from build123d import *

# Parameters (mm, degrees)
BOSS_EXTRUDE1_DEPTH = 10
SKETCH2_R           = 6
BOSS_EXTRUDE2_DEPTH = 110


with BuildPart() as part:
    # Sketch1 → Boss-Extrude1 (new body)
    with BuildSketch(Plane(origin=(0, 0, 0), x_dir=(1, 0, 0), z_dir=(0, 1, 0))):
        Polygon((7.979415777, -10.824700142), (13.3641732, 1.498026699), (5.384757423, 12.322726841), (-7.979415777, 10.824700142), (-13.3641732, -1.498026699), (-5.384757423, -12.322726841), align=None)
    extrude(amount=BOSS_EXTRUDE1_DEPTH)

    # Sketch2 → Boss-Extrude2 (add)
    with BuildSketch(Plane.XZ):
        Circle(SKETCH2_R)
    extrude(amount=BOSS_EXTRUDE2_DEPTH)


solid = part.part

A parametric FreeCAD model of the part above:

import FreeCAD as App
import Part
import Sketcher
from FreeCAD import Vector
Q = App.Units.Quantity

doc = App.newDocument("Part")
params = doc.addObject("Spreadsheet::Sheet", "Params")
for row, (alias, value) in enumerate([
    ("pad1_length", "10 mm"),
    ("sketch2_diameter", "12 mm"),
    ("pad2_length", "110 mm"),
], start=1):
    params.set(f"A{row}", alias)
    params.set(f"B{row}", "=" + value)
    params.setAlias(f"B{row}", alias)

body = doc.addObject("PartDesign::Body", "Body")

# Sketch on XZ plane
sketch1 = body.newObject("Sketcher::SketchObject", "Sketch")
sketch1.AttachmentSupport = (doc.getObject("XZ_Plane"), [""])
sketch1.MapMode = "FlatFace"
sketch1.addGeometry([
    Part.LineSegment(Vector(8, 11, 0), Vector(13, -1, 0)),  # 0
    Part.LineSegment(Vector(13, -1, 0), Vector(5, -12, 0)),  # 1
    Part.LineSegment(Vector(5, -12, 0), Vector(-8, -11, 0)),  # 2
    Part.LineSegment(Vector(-8, -11, 0), Vector(-13, 1, 0)),  # 3
    Part.LineSegment(Vector(-13, 1, 0), Vector(-5, 12, 0)),  # 4
    Part.LineSegment(Vector(-5, 12, 0), Vector(8, 11, 0)),  # 5
], False)
sketch1.addConstraint([
    Sketcher.Constraint("Coincident", 0, 2, 1, 1),
    Sketcher.Constraint("Coincident", 1, 2, 2, 1),
    Sketcher.Constraint("Coincident", 2, 2, 3, 1),
    Sketcher.Constraint("Coincident", 3, 2, 4, 1),
    Sketcher.Constraint("Coincident", 4, 2, 5, 1),
    Sketcher.Constraint("Coincident", 5, 2, 0, 1),
    Sketcher.Constraint("Symmetric", 0, 2, 3, 2, -1, 1),
    Sketcher.Constraint("Symmetric", 1, 2, 4, 2, -1, 1),
    Sketcher.Constraint("Symmetric", 2, 2, 5, 2, -1, 1),
    Sketcher.Constraint("Equal", 0, 1),
    Sketcher.Constraint("Equal", 1, 2),
    Sketcher.Constraint("DistanceY", 2, 2, -1, 1, Q("10.8247 mm")),
    Sketcher.Constraint("DistanceY", 1, 2, 0, 2, Q("10.8247 mm")),
    Sketcher.Constraint("Distance", 0, Q("13.44787 mm")),
    Sketcher.Constraint("DistanceX", 2, 2, 0, 2, Q("21.343589 mm")),
])
pad1 = body.newObject("PartDesign::Pad", "Pad")
pad1.Profile = sketch1
pad1.setExpression("Length", "Params.pad1_length")
pad1.Reversed = True

# Sketch on XZ plane
sketch2 = body.newObject("Sketcher::SketchObject", "Sketch001")
sketch2.AttachmentSupport = (doc.getObject("XZ_Plane"), [""])
sketch2.MapMode = "FlatFace"
sketch2.addGeometry(Part.Circle(Vector(0, 0, 0), Vector(0, 0, 1), 6), False)
sketch2.addConstraint([
    Sketcher.Constraint("Coincident", 0, 3, -1, 1),
    Sketcher.Constraint("Diameter", 0, Q("12 mm")),
])
sketch2.setExpression("Constraints[1]", "Params.sketch2_diameter")
pad2 = body.newObject("PartDesign::Pad", "Pad001")
pad2.Profile = sketch2
pad2.setExpression("Length", "Params.pad2_length")

doc.recompute()
